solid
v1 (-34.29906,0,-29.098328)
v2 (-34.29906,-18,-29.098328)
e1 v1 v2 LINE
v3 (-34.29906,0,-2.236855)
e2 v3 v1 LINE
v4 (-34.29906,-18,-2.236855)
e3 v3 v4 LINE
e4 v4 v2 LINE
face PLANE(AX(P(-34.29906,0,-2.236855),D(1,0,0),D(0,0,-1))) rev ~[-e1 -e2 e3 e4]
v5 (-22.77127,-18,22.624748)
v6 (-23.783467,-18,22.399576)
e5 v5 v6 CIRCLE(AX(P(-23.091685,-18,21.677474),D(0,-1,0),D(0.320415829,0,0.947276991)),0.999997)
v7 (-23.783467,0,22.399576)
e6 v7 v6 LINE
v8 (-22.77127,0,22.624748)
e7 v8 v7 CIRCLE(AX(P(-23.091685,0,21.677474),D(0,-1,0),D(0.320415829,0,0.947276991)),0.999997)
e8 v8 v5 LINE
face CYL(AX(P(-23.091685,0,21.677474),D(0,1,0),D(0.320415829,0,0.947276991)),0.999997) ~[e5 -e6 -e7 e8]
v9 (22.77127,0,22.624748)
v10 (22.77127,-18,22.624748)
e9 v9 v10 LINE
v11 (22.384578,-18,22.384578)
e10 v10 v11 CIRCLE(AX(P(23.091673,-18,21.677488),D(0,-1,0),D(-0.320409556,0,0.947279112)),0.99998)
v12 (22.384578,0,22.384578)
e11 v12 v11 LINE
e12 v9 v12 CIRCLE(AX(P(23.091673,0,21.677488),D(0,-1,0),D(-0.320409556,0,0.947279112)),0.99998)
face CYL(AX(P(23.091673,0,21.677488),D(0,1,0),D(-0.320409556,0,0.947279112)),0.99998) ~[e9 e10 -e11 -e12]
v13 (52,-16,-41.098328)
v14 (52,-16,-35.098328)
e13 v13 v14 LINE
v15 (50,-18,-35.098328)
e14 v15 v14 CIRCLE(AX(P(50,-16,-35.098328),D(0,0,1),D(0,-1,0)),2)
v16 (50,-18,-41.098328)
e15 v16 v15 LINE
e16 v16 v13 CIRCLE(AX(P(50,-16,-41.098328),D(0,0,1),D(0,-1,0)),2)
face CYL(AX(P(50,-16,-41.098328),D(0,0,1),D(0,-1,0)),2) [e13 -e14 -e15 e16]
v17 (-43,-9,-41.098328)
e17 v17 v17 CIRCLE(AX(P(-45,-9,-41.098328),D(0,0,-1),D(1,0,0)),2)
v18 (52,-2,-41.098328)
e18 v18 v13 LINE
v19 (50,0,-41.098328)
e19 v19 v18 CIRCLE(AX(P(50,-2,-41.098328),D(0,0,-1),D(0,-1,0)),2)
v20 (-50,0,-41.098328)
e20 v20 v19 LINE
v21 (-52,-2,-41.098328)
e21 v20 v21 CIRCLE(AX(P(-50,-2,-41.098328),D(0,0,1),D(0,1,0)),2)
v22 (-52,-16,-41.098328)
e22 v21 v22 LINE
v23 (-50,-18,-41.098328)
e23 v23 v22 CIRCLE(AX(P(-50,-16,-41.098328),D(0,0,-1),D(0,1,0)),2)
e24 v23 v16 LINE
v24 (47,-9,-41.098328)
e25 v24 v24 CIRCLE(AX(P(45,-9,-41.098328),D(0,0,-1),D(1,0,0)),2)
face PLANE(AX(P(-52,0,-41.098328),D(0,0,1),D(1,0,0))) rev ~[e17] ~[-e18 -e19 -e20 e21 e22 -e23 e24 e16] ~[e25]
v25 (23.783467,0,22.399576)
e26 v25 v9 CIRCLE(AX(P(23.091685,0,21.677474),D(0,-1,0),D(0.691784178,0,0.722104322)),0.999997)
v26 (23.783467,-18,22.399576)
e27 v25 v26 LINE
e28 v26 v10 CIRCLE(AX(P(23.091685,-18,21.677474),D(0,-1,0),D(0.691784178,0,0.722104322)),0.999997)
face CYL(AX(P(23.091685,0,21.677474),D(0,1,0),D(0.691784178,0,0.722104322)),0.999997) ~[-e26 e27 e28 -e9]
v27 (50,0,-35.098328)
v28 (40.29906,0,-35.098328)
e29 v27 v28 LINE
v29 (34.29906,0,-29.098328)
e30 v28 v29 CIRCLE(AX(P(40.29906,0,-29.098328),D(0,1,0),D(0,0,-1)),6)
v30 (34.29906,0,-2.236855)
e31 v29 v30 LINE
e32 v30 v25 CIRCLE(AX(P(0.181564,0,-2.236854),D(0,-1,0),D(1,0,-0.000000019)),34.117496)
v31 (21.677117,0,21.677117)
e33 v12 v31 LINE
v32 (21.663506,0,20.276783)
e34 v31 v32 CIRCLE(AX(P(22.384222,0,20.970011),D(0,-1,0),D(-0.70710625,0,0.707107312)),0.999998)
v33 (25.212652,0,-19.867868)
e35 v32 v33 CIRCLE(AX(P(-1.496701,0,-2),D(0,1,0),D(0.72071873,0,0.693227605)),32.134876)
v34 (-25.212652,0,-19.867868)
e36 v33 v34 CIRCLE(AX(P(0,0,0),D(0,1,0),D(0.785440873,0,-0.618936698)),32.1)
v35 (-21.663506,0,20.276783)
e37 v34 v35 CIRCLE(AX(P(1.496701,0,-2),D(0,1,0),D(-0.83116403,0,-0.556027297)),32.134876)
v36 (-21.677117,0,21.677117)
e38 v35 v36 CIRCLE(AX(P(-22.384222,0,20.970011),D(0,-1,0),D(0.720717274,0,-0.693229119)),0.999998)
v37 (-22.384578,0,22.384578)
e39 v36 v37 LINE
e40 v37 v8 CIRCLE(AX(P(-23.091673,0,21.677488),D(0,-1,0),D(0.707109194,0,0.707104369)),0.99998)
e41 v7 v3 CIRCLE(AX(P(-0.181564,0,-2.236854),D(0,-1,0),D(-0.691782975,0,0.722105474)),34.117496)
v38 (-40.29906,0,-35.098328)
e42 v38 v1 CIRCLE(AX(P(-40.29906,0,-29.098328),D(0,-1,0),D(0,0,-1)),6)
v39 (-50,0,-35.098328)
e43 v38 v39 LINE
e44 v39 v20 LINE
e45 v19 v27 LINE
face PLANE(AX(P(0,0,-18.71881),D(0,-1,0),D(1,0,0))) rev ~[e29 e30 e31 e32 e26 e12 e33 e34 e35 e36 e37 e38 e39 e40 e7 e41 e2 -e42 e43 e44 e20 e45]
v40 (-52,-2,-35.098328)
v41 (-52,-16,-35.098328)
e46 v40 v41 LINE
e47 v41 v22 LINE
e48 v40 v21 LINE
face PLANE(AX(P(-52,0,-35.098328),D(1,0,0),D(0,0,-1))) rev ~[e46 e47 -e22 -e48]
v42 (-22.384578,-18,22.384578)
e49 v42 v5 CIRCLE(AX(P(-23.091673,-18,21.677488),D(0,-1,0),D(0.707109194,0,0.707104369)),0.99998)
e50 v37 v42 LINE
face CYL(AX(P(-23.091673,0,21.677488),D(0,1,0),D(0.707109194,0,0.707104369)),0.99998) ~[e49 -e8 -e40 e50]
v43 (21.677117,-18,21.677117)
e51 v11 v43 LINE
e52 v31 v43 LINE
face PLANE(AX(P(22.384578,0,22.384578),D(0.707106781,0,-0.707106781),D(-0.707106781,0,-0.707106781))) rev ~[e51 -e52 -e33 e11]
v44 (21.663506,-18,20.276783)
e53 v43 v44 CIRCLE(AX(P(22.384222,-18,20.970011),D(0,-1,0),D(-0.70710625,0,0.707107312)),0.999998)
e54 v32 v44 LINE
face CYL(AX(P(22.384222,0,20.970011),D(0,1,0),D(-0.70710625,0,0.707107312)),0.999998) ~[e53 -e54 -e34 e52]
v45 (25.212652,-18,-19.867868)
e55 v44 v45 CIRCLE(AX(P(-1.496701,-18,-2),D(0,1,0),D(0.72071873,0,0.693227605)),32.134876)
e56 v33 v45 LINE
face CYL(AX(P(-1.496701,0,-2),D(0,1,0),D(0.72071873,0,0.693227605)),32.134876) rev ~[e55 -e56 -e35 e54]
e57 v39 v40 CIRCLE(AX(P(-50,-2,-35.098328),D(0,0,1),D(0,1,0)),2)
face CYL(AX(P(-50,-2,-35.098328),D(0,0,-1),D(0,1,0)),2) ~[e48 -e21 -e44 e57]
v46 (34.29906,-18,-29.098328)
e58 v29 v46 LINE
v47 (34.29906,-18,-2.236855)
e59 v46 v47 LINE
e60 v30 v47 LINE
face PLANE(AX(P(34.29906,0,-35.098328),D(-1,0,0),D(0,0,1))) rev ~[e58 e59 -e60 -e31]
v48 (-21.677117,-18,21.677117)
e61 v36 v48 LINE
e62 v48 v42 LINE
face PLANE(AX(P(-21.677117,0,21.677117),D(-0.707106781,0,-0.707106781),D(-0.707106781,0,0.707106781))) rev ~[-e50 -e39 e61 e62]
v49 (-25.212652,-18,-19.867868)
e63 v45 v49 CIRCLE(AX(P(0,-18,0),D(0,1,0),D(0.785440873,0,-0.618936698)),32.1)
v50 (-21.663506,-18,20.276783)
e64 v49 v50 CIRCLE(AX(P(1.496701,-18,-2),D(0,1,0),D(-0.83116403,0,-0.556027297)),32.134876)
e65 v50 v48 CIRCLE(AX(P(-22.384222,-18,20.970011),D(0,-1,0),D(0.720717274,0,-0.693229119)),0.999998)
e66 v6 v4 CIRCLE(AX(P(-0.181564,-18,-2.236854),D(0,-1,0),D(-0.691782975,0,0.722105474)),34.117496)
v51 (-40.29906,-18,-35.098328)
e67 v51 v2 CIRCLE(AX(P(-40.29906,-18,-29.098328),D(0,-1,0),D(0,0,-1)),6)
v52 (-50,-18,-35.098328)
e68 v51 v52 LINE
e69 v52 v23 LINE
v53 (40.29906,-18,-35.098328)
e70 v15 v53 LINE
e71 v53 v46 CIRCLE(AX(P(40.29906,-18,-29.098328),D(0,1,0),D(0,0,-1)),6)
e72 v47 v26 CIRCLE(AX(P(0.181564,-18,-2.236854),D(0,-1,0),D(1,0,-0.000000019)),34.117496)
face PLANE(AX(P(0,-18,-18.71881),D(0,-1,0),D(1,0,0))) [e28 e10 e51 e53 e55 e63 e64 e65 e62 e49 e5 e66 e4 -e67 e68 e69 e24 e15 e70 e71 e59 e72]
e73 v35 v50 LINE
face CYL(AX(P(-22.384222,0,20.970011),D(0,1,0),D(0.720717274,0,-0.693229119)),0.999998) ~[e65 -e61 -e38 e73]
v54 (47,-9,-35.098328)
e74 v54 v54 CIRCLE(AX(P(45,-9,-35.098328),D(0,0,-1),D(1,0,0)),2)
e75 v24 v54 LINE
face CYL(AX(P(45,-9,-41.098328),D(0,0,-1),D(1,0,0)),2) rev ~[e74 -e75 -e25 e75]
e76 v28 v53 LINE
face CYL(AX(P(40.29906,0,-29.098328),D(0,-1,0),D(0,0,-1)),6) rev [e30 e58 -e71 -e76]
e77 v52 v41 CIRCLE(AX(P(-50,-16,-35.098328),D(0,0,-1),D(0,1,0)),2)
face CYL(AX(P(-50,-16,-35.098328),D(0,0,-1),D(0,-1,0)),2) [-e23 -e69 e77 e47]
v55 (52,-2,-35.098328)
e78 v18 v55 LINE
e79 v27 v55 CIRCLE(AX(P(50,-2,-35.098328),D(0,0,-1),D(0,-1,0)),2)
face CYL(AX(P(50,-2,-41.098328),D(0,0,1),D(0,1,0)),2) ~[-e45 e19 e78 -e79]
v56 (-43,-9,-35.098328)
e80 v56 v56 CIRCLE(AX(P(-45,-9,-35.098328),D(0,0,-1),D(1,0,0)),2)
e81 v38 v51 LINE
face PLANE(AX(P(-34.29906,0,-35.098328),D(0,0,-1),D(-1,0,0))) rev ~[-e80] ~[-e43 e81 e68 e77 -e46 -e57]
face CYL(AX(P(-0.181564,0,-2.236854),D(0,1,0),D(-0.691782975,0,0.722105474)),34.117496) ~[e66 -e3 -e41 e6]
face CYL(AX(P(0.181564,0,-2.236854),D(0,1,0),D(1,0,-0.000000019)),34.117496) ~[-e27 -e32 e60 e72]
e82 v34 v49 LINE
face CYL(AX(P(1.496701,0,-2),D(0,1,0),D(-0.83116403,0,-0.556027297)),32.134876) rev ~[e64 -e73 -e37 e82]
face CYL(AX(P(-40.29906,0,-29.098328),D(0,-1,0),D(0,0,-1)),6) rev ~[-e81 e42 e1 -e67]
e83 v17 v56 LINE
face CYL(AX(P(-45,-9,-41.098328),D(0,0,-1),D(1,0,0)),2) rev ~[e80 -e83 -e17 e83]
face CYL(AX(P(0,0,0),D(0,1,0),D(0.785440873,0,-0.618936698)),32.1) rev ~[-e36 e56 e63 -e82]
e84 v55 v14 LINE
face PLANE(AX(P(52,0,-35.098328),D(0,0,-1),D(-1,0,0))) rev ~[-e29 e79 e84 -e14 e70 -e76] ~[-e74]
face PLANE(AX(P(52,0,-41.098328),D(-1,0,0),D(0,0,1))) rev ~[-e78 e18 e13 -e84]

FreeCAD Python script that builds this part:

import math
import FreeCAD as App
import Part
import Sketcher

V = App.Vector
Q = App.Units.Quantity


def edges_at(feature, points):
    """Names of the edges that pass closest to the given points."""
    edges = feature.Shape.Edges
    near = lambda p: min(range(len(edges)), key=lambda i: edges[i].distToShape(Part.Vertex(*p))[0])
    return sorted({f"Edge{near(p) + 1}" for p in points})

doc = App.newDocument("Part")
body = doc.addObject("PartDesign::Body", "Body")

# Sketch on XZ plane
sketch1 = doc.addObject("Sketcher::SketchObject", "Sketch")
body.addObject(sketch1)
sketch1.AttachmentSupport = (doc.XZ_Plane, [""])
sketch1.MapMode = "FlatFace"
sketch1.addGeometry(Part.ArcOfCircle(Part.Circle(V(0, 0, 0), V(0, 0, 1), 32.1), math.radians(-142), math.radians(-38)), False)
sketch1.addGeometry(Part.ArcOfCircle(Part.Circle(V(1.5, -2, 0), V(0, 0, 1), 32.13), math.radians(136), math.radians(214)), False)
sketch1.addGeometry(Part.ArcOfCircle(Part.Circle(V(-22.38, 20.97, 0), V(0, 0, 1), 1), math.radians(-44), math.radians(45)), False)
sketch1.addGeometry(Part.LineSegment(V(-21.68, 21.68, 0), V(-22.38, 22.38, 0)), False)
sketch1.addGeometry(Part.ArcOfCircle(Part.Circle(V(-23.09, 21.68, 0), V(0, 0, 1), 1), math.radians(45), math.radians(71)), False)
sketch1.addGeometry(Part.ArcOfCircle(Part.Circle(V(-23.09, 21.68, 0), V(0, 0, 1), 1), math.radians(71), math.radians(134)), False)
sketch1.addGeometry(Part.ArcOfCircle(Part.Circle(V(-0.18, -2.24, 0), V(0, 0, 1), 34.12), math.radians(134), math.radians(180)), False)
sketch1.addGeometry(Part.LineSegment(V(-34.3, -2.24, 0), V(-34.3, -35.1, 0)), False)
sketch1.addGeometry(Part.LineSegment(V(-34.3, -35.1, 0), V(-52, -35.1, 0)), False)
sketch1.addGeometry(Part.LineSegment(V(-52, -35.1, 0), V(-52, -41.1, 0)), False)
sketch1.addGeometry(Part.LineSegment(V(-52, -41.1, 0), V(52, -41.1, 0)), False)
sketch1.addGeometry(Part.LineSegment(V(52, -41.1, 0), V(52, -35.1, 0)), False)
sketch1.addGeometry(Part.LineSegment(V(52, -35.1, 0), V(34.3, -35.1, 0)), False)
sketch1.addGeometry(Part.LineSegment(V(34.3, -35.1, 0), V(34.3, -2.24, 0)), False)
sketch1.addGeometry(Part.ArcOfCircle(Part.Circle(V(0.18, -2.24, 0), V(0, 0, 1), 34.12), math.radians(0), math.radians(46)), False)
sketch1.addGeometry(Part.ArcOfCircle(Part.Circle(V(23.09, 21.68, 0), V(0, 0, 1), 1), math.radians(46), math.radians(109)), False)
sketch1.addGeometry(Part.ArcOfCircle(Part.Circle(V(23.09, 21.68, 0), V(0, 0, 1), 1), math.radians(109), math.radians(135)), False)
sketch1.addGeometry(Part.LineSegment(V(22.38, 22.38, 0), V(21.68, 21.68, 0)), False)
sketch1.addGeometry(Part.ArcOfCircle(Part.Circle(V(22.38, 20.97, 0), V(0, 0, 1), 1), math.radians(135), math.radians(224)), False)
sketch1.addGeometry(Part.ArcOfCircle(Part.Circle(V(-1.5, -2, 0), V(0, 0, 1), 32.13), math.radians(-34), math.radians(44)), False)
sketch1.addConstraint(Sketcher.Constraint("Coincident", 0, 1, 1, 2))
sketch1.addConstraint(Sketcher.Constraint("Coincident", 1, 1, 2, 1))
sketch1.addConstraint(Sketcher.Constraint("Tangent", 2, 2, 3, 1))
sketch1.addConstraint(Sketcher.Constraint("Coincident", 3, 2, 4, 1))
sketch1.addConstraint(Sketcher.Constraint("Coincident", 4, 2, 5, 1))
sketch1.addConstraint(Sketcher.Constraint("Tangent", 5, 2, 6, 1))
sketch1.addConstraint(Sketcher.Constraint("Tangent", 6, 2, 7, 1))
sketch1.addConstraint(Sketcher.Constraint("Coincident", 7, 2, 8, 1))
sketch1.addConstraint(Sketcher.Constraint("Coincident", 8, 2, 9, 1))
sketch1.addConstraint(Sketcher.Constraint("Coincident", 9, 2, 10, 1))
sketch1.addConstraint(Sketcher.Constraint("Coincident", 10, 2, 11, 1))
sketch1.addConstraint(Sketcher.Constraint("Coincident", 11, 2, 12, 1))
sketch1.addConstraint(Sketcher.Constraint("Coincident", 12, 2, 13, 1))
sketch1.addConstraint(Sketcher.Constraint("Tangent", 13, 2, 14, 1))
sketch1.addConstraint(Sketcher.Constraint("Tangent", 14, 2, 15, 1))
sketch1.addConstraint(Sketcher.Constraint("Coincident", 15, 2, 16, 1))
sketch1.addConstraint(Sketcher.Constraint("Coincident", 16, 2, 17, 1))
sketch1.addConstraint(Sketcher.Constraint("Tangent", 17, 2, 18, 1))
sketch1.addConstraint(Sketcher.Constraint("Coincident", 18, 2, 19, 2))
sketch1.addConstraint(Sketcher.Constraint("Coincident", 19, 1, 0, 2))
sketch1.addConstraint(Sketcher.Constraint("Vertical", 7))
sketch1.addConstraint(Sketcher.Constraint("Horizontal", 8))
sketch1.addConstraint(Sketcher.Constraint("Vertical", 9))
sketch1.addConstraint(Sketcher.Constraint("Horizontal", 10))
sketch1.addConstraint(Sketcher.Constraint("Vertical", 11))
sketch1.addConstraint(Sketcher.Constraint("Horizontal", 12))
sketch1.addConstraint(Sketcher.Constraint("Vertical", 13))
sketch1.addConstraint(Sketcher.Constraint("Coincident", 0, 3, -1, 1))
sketch1.addConstraint(Sketcher.Constraint("Equal", 2, 5))
sketch1.addConstraint(Sketcher.Constraint("Equal", 6, 14))
sketch1.addConstraint(Sketcher.Constraint("Equal", 5, 15))
sketch1.addConstraint(Sketcher.Constraint("Equal", 4, 16))
sketch1.addConstraint(Sketcher.Constraint("Equal", 15, 18))
sketch1.addConstraint(Sketcher.Constraint("Equal", 1, 19))
sketch1.addConstraint(Sketcher.Constraint("Symmetric", 6, 3, 14, 3, -2))
sketch1.addConstraint(Sketcher.Constraint("Symmetric", 4, 3, 16, 3, -2))
sketch1.addConstraint(Sketcher.Constraint("Symmetric", 2, 3, 18, 3, -2))
sketch1.addConstraint(Sketcher.Constraint("Symmetric", 8, 2, 11, 2, -2))
sketch1.addConstraint(Sketcher.Constraint("Perpendicular", 3, 17))
sketch1.addConstraint(Sketcher.Constraint("Horizontal", 1, 3, 19, 3))
sketch1.addConstraint(Sketcher.Constraint("Horizontal", 4, 2, 15, 2))
sketch1.addConstraint(Sketcher.Constraint("Horizontal", 3, 2, 16, 2))
sketch1.addConstraint(Sketcher.Constraint("Horizontal", 1, 1, 18, 2))
sketch1.addConstraint(Sketcher.Constraint("Radius", 2, Q("0.999998 mm")))
sketch1.addConstraint(Sketcher.Constraint("Radius", 0, Q("32.1 mm")))
sketch1.addConstraint(Sketcher.Constraint("DistanceX", 10, 1, 10, 2, Q("104 mm")))
sketch1.addConstraint(Sketcher.Constraint("DistanceY", 9, 2, 9, 1, Q("6 mm")))
sketch1.addConstraint(Sketcher.Constraint("DistanceY", 1, 3, -1, 1, Q("2 mm")))
sketch1.addConstraint(Sketcher.Constraint("Radius", 4, Q("0.99998 mm")))
sketch1.addConstraint(Sketcher.Constraint("Radius", 1, Q("32.134876 mm")))
sketch1.addConstraint(Sketcher.Constraint("Radius", 6, Q("34.117496 mm")))
sketch1.addConstraint(Sketcher.Constraint("DistanceY", 3, 2, 5, 2, Q("0.014998 mm")))
sketch1.addConstraint(Sketcher.Constraint("Distance", 3, Q("1.000501 mm")))
sketch1.addConstraint(Sketcher.Constraint("DistanceX", 8, 2, 8, 1, Q("17.70094 mm")))
sketch1.addConstraint(Sketcher.Constraint("DistanceX", -1, 1, 1, 3, Q("1.496701 mm")))
sketch1.addConstraint(Sketcher.Constraint("DistanceY", 7, 2, 7, 1, Q("32.861473 mm")))
sketch1.addConstraint(Sketcher.Constraint("DistanceY", -1, 1, 2, 3, Q("20.970011 mm")))
sketch1.addConstraint(Sketcher.Constraint("DistanceX", 4, 2, -1, 1, Q("22.77127 mm")))
sketch1.addConstraint(Sketcher.Constraint("DistanceY", -1, 1, 4, 2, Q("22.624748 mm")))
sketch1.addConstraint(Sketcher.Constraint("DistanceX", 5, 3, 1, 1, Q("1.428179 mm")))
pad1 = doc.addObject("PartDesign::Pad", "Pad")
body.addObject(pad1)
pad1.Profile = sketch1
pad1.Length = 18

# Sketch on XY plane
sketch2 = doc.addObject("Sketcher::SketchObject", "Sketch001")
body.addObject(sketch2)
sketch2.AttachmentSupport = (doc.XY_Plane, [""])
sketch2.MapMode = "FlatFace"
sketch2.AttachmentOffset = App.Placement(V(0, 0, -41.098328), App.Rotation())
sketch2.addGeometry(Part.Circle(V(-45, -9, 0), V(0, 0, 1), 2), False)
sketch2.addGeometry(Part.Circle(V(45, -9, 0), V(0, 0, 1), 2), False)
sketch2.addConstraint(Sketcher.Constraint("Equal", 0, 1))
sketch2.addConstraint(Sketcher.Constraint("Symmetric", 0, 3, 1, 3, -2))
sketch2.addConstraint(Sketcher.Constraint("Diameter", 0, Q("4 mm")))
sketch2.addConstraint(Sketcher.Constraint("DistanceX", 0, 3, -1, 1, Q("45 mm")))
sketch2.addConstraint(Sketcher.Constraint("DistanceY", 0, 3, -1, 1, Q("9 mm")))
pocket1 = doc.addObject("PartDesign::Pocket", "Pocket")
body.addObject(pocket1)
pocket1.Profile = sketch2
pocket1.Type = "ThroughAll"
pocket1.Reversed = True
doc.recompute()

fillet = doc.addObject("PartDesign::Fillet", "Fillet")
body.addObject(fillet)
fillet.Base = (pocket1, edges_at(pocket1, [
    (-52, 0, -38.098),
    (-52, -18, -38.098),
    (52, -18, -38.098),
    (52, 0, -38.098),
]))
fillet.Radius = 2
doc.recompute()

fillet2 = doc.addObject("PartDesign::Fillet", "Fillet001")
body.addObject(fillet2)
fillet2.Base = (fillet, edges_at(fillet, [(-34.299, -9, -35.098), (34.299, -9, -35.098)]))
fillet2.Radius = 6

doc.recompute()
